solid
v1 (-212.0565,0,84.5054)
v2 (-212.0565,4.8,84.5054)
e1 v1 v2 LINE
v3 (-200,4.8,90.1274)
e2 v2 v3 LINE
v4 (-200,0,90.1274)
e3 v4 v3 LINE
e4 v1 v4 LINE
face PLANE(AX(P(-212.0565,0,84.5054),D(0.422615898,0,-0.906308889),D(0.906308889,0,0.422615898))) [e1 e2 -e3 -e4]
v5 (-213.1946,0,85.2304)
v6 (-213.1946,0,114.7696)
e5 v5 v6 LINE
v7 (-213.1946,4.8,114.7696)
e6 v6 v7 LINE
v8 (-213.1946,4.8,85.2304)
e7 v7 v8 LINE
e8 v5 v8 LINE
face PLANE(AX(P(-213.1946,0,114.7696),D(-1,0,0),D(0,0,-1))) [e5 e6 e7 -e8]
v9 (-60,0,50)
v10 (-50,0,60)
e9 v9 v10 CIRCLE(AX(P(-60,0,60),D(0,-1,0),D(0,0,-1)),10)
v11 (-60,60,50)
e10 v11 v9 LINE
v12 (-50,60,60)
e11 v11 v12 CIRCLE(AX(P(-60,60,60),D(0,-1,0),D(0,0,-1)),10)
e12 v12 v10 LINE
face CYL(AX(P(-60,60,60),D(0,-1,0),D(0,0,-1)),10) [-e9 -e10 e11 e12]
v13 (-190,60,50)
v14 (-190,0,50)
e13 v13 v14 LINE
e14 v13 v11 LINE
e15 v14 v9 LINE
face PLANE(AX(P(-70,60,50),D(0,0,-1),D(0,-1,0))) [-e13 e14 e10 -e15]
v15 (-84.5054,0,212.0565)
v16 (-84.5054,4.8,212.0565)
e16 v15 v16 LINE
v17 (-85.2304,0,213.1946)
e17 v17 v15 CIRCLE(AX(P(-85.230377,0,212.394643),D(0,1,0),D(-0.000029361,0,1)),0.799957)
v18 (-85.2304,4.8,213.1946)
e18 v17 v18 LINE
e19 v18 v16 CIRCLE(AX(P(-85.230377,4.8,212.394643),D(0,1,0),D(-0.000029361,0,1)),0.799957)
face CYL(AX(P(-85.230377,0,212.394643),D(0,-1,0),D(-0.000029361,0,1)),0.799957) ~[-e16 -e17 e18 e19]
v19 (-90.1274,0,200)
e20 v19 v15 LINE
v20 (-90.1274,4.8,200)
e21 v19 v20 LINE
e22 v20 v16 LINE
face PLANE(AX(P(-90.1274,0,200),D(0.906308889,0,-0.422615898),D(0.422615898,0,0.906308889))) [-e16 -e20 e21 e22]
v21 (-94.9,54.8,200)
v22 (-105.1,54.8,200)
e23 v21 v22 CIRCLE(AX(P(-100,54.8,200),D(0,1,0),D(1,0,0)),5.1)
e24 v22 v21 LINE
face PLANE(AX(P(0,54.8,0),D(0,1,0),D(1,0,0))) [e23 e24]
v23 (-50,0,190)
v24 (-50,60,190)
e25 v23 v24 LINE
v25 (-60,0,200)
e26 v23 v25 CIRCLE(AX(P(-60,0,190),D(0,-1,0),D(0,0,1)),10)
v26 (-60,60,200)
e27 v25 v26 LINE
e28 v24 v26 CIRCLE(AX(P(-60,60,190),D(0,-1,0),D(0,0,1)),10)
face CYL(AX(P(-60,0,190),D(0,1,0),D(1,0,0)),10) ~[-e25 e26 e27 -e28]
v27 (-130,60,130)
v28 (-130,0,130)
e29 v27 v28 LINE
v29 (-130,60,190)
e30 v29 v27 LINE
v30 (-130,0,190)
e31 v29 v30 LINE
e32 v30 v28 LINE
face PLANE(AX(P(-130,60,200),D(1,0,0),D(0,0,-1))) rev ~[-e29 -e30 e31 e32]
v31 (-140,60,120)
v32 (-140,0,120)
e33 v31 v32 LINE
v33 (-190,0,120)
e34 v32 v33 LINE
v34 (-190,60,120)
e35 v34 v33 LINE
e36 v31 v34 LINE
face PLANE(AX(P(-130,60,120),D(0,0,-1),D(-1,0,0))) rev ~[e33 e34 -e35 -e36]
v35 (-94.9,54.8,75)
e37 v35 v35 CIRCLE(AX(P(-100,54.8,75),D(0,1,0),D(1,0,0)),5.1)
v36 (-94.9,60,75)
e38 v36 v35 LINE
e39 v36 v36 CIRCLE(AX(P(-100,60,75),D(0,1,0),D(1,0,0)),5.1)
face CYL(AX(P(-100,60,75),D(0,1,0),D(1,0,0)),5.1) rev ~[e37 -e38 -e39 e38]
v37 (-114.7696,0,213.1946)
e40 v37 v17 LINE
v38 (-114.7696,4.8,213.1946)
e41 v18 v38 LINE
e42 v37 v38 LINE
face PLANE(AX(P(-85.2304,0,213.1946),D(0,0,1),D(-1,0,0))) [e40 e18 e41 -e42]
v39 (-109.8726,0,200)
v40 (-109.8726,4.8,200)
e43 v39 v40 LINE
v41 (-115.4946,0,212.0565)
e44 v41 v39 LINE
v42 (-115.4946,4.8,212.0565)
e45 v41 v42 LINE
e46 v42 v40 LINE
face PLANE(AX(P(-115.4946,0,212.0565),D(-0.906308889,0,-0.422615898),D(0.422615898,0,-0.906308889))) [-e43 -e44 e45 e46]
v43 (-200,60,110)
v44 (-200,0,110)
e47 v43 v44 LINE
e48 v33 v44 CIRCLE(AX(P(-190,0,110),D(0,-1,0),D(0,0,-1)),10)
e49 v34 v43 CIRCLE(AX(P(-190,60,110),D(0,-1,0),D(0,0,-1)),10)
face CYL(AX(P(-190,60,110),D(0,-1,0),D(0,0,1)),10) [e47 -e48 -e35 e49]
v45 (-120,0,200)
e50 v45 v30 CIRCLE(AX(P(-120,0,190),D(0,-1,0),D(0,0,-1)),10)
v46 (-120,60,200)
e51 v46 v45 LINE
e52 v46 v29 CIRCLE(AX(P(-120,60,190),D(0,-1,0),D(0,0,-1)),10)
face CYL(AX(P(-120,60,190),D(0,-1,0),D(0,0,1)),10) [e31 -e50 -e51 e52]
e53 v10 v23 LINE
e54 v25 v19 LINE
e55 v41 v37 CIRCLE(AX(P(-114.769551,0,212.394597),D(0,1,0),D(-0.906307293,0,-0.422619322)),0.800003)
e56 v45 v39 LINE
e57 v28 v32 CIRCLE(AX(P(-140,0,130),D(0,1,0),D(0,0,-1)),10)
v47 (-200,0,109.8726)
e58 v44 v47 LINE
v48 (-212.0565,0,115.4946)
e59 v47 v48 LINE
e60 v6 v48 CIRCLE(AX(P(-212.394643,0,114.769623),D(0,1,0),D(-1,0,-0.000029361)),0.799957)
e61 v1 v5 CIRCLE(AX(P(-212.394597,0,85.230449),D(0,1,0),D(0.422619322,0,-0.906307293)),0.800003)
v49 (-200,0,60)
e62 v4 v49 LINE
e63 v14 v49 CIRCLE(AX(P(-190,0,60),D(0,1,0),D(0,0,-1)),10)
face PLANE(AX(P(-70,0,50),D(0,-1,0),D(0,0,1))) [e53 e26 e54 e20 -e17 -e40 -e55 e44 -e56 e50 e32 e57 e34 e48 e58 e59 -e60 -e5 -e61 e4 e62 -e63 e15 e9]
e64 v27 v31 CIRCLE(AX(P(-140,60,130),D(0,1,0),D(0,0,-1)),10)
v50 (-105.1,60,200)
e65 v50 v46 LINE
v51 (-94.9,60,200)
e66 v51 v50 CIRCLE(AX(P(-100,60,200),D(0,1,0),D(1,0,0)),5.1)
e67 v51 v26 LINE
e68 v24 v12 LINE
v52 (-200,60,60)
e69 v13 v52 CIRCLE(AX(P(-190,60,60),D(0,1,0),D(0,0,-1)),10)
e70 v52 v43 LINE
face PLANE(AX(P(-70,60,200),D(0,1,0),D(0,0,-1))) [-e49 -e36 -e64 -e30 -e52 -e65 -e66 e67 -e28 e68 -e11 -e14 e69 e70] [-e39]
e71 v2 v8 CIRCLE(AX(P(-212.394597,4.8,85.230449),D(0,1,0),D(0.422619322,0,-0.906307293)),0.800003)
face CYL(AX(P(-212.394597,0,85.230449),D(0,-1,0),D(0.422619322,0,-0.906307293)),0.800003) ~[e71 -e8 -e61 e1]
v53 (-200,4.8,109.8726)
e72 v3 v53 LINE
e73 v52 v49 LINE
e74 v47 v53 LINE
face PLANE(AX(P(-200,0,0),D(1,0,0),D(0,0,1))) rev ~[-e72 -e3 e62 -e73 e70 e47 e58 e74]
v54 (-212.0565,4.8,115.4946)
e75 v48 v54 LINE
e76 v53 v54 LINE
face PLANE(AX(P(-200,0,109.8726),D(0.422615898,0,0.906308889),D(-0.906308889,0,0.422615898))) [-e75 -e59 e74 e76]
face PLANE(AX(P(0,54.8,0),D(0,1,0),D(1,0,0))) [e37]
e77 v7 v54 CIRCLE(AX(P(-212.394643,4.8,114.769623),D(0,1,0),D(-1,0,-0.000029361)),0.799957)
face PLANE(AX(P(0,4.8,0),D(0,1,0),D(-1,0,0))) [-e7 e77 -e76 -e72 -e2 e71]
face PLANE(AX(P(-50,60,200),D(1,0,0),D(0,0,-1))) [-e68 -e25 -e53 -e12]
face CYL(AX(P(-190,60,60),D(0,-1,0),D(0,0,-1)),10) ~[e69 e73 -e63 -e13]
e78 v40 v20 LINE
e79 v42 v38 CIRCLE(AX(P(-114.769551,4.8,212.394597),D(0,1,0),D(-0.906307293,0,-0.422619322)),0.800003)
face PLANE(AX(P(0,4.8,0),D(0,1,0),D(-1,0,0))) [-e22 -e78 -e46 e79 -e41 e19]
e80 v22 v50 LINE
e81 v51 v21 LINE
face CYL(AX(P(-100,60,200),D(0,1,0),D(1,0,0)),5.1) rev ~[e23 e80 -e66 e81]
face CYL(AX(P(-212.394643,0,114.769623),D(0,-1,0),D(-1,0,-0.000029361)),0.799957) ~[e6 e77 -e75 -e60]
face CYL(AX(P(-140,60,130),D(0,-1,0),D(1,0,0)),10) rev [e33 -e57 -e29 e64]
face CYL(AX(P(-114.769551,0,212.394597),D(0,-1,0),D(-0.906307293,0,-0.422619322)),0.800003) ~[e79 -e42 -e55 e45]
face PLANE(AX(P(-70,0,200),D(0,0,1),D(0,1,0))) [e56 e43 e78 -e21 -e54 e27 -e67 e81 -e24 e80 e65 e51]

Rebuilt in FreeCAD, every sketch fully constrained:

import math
import FreeCAD as App
import Part
import Sketcher

V = App.Vector
Q = App.Units.Quantity


def edges_at(feature, points):
    """Names of the edges that pass closest to the given points."""
    edges = feature.Shape.Edges
    near = lambda p: min(range(len(edges)), key=lambda i: edges[i].distToShape(Part.Vertex(*p))[0])
    return sorted({f"Edge{near(p) + 1}" for p in points})

doc = App.newDocument("Part")
body = doc.addObject("PartDesign::Body", "Body")

# Sketch on XZ plane
sketch1 = doc.addObject("Sketcher::SketchObject", "Sketch")
body.addObject(sketch1)
sketch1.AttachmentSupport = (doc.XZ_Plane, [""])
sketch1.MapMode = "FlatFace"
sketch1.addGeometry([
    Part.LineSegment(V(0, 200, 0), V(0, 0, 0)),
    Part.LineSegment(V(0, 0, 0), V(-200, 0, 0)),
    Part.LineSegment(V(-200, 0, 0), V(-200, 200, 0)),
    Part.LineSegment(V(-200, 200, 0), V(0, 200, 0)),
], False)
sketch1.addConstraint([
    Sketcher.Constraint("Coincident", 0, 2, 1, 1),
    Sketcher.Constraint("Coincident", 1, 2, 2, 1),
    Sketcher.Constraint("Coincident", 2, 2, 3, 1),
    Sketcher.Constraint("Coincident", 3, 2, 0, 1),
    Sketcher.Constraint("Vertical", 0),
    Sketcher.Constraint("Horizontal", 1),
    Sketcher.Constraint("Vertical", 2),
    Sketcher.Constraint("Horizontal", 3),
    Sketcher.Constraint("Coincident", 0, 2, -1, 1),
    Sketcher.Constraint("Equal", 3, 0),
    Sketcher.Constraint("DistanceX", 1, 2, 1, 1, 200.0),
])
pad1 = doc.addObject("PartDesign::Pad", "Pad")
body.addObject(pad1)
pad1.Profile = sketch1
pad1.Length = 60
pad1.Reversed = True

# Sketch on XZ plane
sketch2 = doc.addObject("Sketcher::SketchObject", "Sketch001")
body.addObject(sketch2)
sketch2.AttachmentSupport = (doc.XZ_Plane, [""])
sketch2.MapMode = "FlatFace"
sketch2.addGeometry([
    Part.LineSegment(V(-84.5054, 212.0565, 0), V(-90.1274, 200, 0)),  # 0
    Part.LineSegment(V(-90.1274, 200, 0), V(-109.8726, 200, 0)),  # 1
    Part.LineSegment(V(-109.8726, 200, 0), V(-115.4946, 212.0565, 0)),  # 2
    Part.ArcOfCircle(Part.Circle(V(-114.7696, 212.3946, 0), V(0, 0, 1), 0.79996), math.radians(90), math.radians(205.001749)),  # 3
    Part.LineSegment(V(-114.7696, 213.1946, 0), V(-85.2304, 213.1946, 0)),  # 4
    Part.ArcOfCircle(Part.Circle(V(-85.2304, 212.3946, 0), V(0, 0, 1), 0.8), math.radians(-25.001749), math.radians(90)),  # 5
    Part.LineSegment(V(-200, 109.8726, 0), V(-200, 90.1274, 0)),  # 6
    Part.LineSegment(V(-200, 90.1274, 0), V(-212.0565, 84.5054, 0)),  # 7
    Part.ArcOfCircle(Part.Circle(V(-212.3946, 85.2304, 0), V(0, 0, 1), 0.79996), math.radians(180), math.radians(295.001749)),  # 8
    Part.LineSegment(V(-213.1946, 85.2304, 0), V(-213.1946, 114.7696, 0)),  # 9
    Part.ArcOfCircle(Part.Circle(V(-212.3946, 114.7696, 0), V(0, 0, 1), 0.8), math.radians(64.998251), math.radians(180)),  # 10
    Part.LineSegment(V(-212.0565, 115.4946, 0), V(-200, 109.8726, 0)),  # 11
], False)
sketch2.addConstraint([
    Sketcher.Constraint("Coincident", 0, 2, 1, 1),
    Sketcher.Constraint("Coincident", 1, 2, 2, 1),
    Sketcher.Constraint("Tangent", 2, 2, 3, 2),
    Sketcher.Constraint("Tangent", 3, 1, 4, 1),
    Sketcher.Constraint("Tangent", 4, 2, 5, 2),
    Sketcher.Constraint("Tangent", 5, 1, 0, 1),
    Sketcher.Constraint("Coincident", 6, 2, 7, 1),
    Sketcher.Constraint("Tangent", 7, 2, 8, 2),
    Sketcher.Constraint("Tangent", 8, 1, 9, 1),
    Sketcher.Constraint("Tangent", 9, 2, 10, 2),
    Sketcher.Constraint("Tangent", 10, 1, 11, 1),
    Sketcher.Constraint("Coincident", 11, 2, 6, 1),
    Sketcher.Constraint("Horizontal", 1),
    Sketcher.Constraint("Horizontal", 4),
    Sketcher.Constraint("Vertical", 6),
    Sketcher.Constraint("Vertical", 9),
    Sketcher.Constraint("Equal", 3, 5),
    Sketcher.Constraint("Equal", 5, 8),
    Sketcher.Constraint("Equal", 8, 10),
    Sketcher.Constraint("Perpendicular", 2, 7),
    Sketcher.Constraint("Perpendicular", 0, 11),
    Sketcher.Constraint("Horizontal", 2, 2, 5, 1),
    Sketcher.Constraint("Equal", 1, 6),
    Sketcher.Constraint("Equal", 4, 9),
    Sketcher.Constraint("DistanceY", -1, 1, 0, 2, 200.0),
    Sketcher.Constraint("DistanceX", 6, 2, -1, 1, 200.0),
    Sketcher.Constraint("Radius", 3, 0.8),
    Sketcher.Constraint("Angle", 0, Q("-114.9999 deg")),
    Sketcher.Constraint("DistanceX", 10, 3, 2, 2, 96.9),
    Sketcher.Constraint("DistanceX", 1, 2, 1, 1, 19.7452),
    Sketcher.Constraint("DistanceX", 4, 1, 4, 2, 29.5392),
    Sketcher.Constraint("DistanceY", 10, 3, 3, 3, 97.625),
])
pad2 = doc.addObject("PartDesign::Pad", "Pad001")
body.addObject(pad2)
pad2.Profile = sketch2
pad2.Length = 4.8
pad2.Reversed = True

# Sketch on XZ plane
sketch3 = doc.addObject("Sketcher::SketchObject", "Sketch002")
body.addObject(sketch3)
sketch3.AttachmentSupport = (doc.XZ_Plane, [""])
sketch3.MapMode = "FlatFace"
sketch3.AttachmentOffset = App.Placement(V(0, 0, -60), App.Rotation())
sketch3.addGeometry([
    Part.Circle(V(-100, 75, 0), V(0, 0, 1), 5.1),
    Part.Circle(V(-100, 200, 0), V(0, 0, 1), 5.1),
], False)
sketch3.addConstraint([
    Sketcher.Constraint("Equal", 0, 1),
    Sketcher.Constraint("Vertical", 0, 3, 1, 3),
    Sketcher.Constraint("Diameter", 0, 10.2),
    Sketcher.Constraint("DistanceX", 0, 3, -1, 1, 100.0),
    Sketcher.Constraint("DistanceY", -1, 1, 0, 3, 75.0),
    Sketcher.Constraint("DistanceY", -1, 1, 1, 3, 200.0),
])
pocket1 = doc.addObject("PartDesign::Pocket", "Pocket")
body.addObject(pocket1)
pocket1.Profile = sketch3
pocket1.Length = 5.2
pocket1.Reversed = True

# Sketch on XZ plane
sketch4 = doc.addObject("Sketcher::SketchObject", "Sketch003")
body.addObject(sketch4)
sketch4.AttachmentSupport = (doc.XZ_Plane, [""])
sketch4.MapMode = "FlatFace"
sketch4.AttachmentOffset = App.Placement(V(0, 0, -60), App.Rotation())
sketch4.addGeometry([
    Part.LineSegment(V(-70, 200, 0), V(0, 200, 0)),  # 0
    Part.LineSegment(V(0, 200, 0), V(0, 0, 0)),  # 1
    Part.LineSegment(V(0, 0, 0), V(-200, 0, 0)),  # 2
    Part.LineSegment(V(-200, 0, 0), V(-200, 50, 0)),  # 3
    Part.LineSegment(V(-200, 50, 0), V(-70, 50, 0)),  # 4
    Part.LineSegment(V(-70, 50, 0), V(-70, 200, 0)),  # 5
    Part.LineSegment(V(-130, 120, 0), V(-200, 120, 0)),  # 6
    Part.LineSegment(V(-200, 120, 0), V(-200, 200, 0)),  # 7
    Part.LineSegment(V(-200, 200, 0), V(-130, 200, 0)),  # 8
    Part.LineSegment(V(-130, 200, 0), V(-130, 120, 0)),  # 9
], False)
sketch4.addConstraint([
    Sketcher.Constraint("Coincident", 0, 2, 1, 1),
    Sketcher.Constraint("Coincident", 1, 2, 2, 1),
    Sketcher.Constraint("Coincident", 2, 2, 3, 1),
    Sketcher.Constraint("Coincident", 3, 2, 4, 1),
    Sketcher.Constraint("Coincident", 4, 2, 5, 1),
    Sketcher.Constraint("Coincident", 5, 2, 0, 1),
    Sketcher.Constraint("Coincident", 6, 2, 7, 1),
    Sketcher.Constraint("Coincident", 7, 2, 8, 1),
    Sketcher.Constraint("Coincident", 8, 2, 9, 1),
    Sketcher.Constraint("Coincident", 9, 2, 6, 1),
    Sketcher.Constraint("Horizontal", 0),
    Sketcher.Constraint("Vertical", 1),
    Sketcher.Constraint("Horizontal", 2),
    Sketcher.Constraint("Vertical", 3),
    Sketcher.Constraint("Horizontal", 4),
    Sketcher.Constraint("Vertical", 5),
    Sketcher.Constraint("Horizontal", 6),
    Sketcher.Constraint("Vertical", 7),
    Sketcher.Constraint("Horizontal", 8),
    Sketcher.Constraint("Vertical", 9),
    Sketcher.Constraint("Coincident", 1, 2, -1, 1),
    Sketcher.Constraint("Horizontal", 5, 2, 7, 2),
    Sketcher.Constraint("Vertical", 3, 2, 6, 2),
    Sketcher.Constraint("Equal", 0, 6),
    Sketcher.Constraint("Equal", 2, 1),
    Sketcher.Constraint("DistanceX", 0, 1, 0, 2, 70.0),
    Sketcher.Constraint("DistanceY", 3, 1, 3, 2, 50.0),
    Sketcher.Constraint("DistanceY", 7, 1, 7, 2, 80.0),
    Sketcher.Constraint("DistanceY", 3, 2, 6, 2, 70.0),
])
pocket2 = doc.addObject("PartDesign::Pocket", "Pocket001")
body.addObject(pocket2)
pocket2.Profile = sketch4
pocket2.Length = 60
pocket2.Reversed = True

# Sketch on YZ plane
sketch5 = doc.addObject("Sketcher::SketchObject", "Sketch004")
body.addObject(sketch5)
sketch5.AttachmentSupport = (doc.YZ_Plane, [""])
sketch5.MapMode = "FlatFace"
sketch5.AttachmentOffset = App.Placement(V(0, 0, -70), App.Rotation())
sketch5.addGeometry([
    Part.LineSegment(V(0, 200, 0), V(0, 50, 0)),
    Part.LineSegment(V(0, 50, 0), V(60, 50, 0)),
    Part.LineSegment(V(60, 50, 0), V(60, 200, 0)),
    Part.LineSegment(V(60, 200, 0), V(0, 200, 0)),
], False)
sketch5.addConstraint([
    Sketcher.Constraint("Coincident", 0, 2, 1, 1),
    Sketcher.Constraint("Coincident", 1, 2, 2, 1),
    Sketcher.Constraint("Coincident", 2, 2, 3, 1),
    Sketcher.Constraint("Coincident", 3, 2, 0, 1),
    Sketcher.Constraint("Vertical", 0),
    Sketcher.Constraint("Horizontal", 1),
    Sketcher.Constraint("Vertical", 2),
    Sketcher.Constraint("Horizontal", 3),
    Sketcher.Constraint("PointOnObject", 0, 2, -2),
    Sketcher.Constraint("DistanceX", 1, 1, 1, 2, 60.0),
    Sketcher.Constraint("DistanceY", 0, 2, 0, 1, 150.0),
    Sketcher.Constraint("DistanceY", -1, 1, 0, 2, 50.0),
])
pad3 = doc.addObject("PartDesign::Pad", "Pad002")
body.addObject(pad3)
pad3.Profile = sketch5
pad3.Length = 20
doc.recompute()

fillet = doc.addObject("PartDesign::Fillet", "Fillet")
body.addObject(fillet)
fillet.Base = (pad3, edges_at(pad3, [
    (-50, 30, 50),
    (-200, 30, 50),
    (-50, 30, 200),
    (-130, 30, 200),
    (-130, 30, 120),
    (-200, 30, 120),
]))
fillet.Radius = 10

doc.recompute()
